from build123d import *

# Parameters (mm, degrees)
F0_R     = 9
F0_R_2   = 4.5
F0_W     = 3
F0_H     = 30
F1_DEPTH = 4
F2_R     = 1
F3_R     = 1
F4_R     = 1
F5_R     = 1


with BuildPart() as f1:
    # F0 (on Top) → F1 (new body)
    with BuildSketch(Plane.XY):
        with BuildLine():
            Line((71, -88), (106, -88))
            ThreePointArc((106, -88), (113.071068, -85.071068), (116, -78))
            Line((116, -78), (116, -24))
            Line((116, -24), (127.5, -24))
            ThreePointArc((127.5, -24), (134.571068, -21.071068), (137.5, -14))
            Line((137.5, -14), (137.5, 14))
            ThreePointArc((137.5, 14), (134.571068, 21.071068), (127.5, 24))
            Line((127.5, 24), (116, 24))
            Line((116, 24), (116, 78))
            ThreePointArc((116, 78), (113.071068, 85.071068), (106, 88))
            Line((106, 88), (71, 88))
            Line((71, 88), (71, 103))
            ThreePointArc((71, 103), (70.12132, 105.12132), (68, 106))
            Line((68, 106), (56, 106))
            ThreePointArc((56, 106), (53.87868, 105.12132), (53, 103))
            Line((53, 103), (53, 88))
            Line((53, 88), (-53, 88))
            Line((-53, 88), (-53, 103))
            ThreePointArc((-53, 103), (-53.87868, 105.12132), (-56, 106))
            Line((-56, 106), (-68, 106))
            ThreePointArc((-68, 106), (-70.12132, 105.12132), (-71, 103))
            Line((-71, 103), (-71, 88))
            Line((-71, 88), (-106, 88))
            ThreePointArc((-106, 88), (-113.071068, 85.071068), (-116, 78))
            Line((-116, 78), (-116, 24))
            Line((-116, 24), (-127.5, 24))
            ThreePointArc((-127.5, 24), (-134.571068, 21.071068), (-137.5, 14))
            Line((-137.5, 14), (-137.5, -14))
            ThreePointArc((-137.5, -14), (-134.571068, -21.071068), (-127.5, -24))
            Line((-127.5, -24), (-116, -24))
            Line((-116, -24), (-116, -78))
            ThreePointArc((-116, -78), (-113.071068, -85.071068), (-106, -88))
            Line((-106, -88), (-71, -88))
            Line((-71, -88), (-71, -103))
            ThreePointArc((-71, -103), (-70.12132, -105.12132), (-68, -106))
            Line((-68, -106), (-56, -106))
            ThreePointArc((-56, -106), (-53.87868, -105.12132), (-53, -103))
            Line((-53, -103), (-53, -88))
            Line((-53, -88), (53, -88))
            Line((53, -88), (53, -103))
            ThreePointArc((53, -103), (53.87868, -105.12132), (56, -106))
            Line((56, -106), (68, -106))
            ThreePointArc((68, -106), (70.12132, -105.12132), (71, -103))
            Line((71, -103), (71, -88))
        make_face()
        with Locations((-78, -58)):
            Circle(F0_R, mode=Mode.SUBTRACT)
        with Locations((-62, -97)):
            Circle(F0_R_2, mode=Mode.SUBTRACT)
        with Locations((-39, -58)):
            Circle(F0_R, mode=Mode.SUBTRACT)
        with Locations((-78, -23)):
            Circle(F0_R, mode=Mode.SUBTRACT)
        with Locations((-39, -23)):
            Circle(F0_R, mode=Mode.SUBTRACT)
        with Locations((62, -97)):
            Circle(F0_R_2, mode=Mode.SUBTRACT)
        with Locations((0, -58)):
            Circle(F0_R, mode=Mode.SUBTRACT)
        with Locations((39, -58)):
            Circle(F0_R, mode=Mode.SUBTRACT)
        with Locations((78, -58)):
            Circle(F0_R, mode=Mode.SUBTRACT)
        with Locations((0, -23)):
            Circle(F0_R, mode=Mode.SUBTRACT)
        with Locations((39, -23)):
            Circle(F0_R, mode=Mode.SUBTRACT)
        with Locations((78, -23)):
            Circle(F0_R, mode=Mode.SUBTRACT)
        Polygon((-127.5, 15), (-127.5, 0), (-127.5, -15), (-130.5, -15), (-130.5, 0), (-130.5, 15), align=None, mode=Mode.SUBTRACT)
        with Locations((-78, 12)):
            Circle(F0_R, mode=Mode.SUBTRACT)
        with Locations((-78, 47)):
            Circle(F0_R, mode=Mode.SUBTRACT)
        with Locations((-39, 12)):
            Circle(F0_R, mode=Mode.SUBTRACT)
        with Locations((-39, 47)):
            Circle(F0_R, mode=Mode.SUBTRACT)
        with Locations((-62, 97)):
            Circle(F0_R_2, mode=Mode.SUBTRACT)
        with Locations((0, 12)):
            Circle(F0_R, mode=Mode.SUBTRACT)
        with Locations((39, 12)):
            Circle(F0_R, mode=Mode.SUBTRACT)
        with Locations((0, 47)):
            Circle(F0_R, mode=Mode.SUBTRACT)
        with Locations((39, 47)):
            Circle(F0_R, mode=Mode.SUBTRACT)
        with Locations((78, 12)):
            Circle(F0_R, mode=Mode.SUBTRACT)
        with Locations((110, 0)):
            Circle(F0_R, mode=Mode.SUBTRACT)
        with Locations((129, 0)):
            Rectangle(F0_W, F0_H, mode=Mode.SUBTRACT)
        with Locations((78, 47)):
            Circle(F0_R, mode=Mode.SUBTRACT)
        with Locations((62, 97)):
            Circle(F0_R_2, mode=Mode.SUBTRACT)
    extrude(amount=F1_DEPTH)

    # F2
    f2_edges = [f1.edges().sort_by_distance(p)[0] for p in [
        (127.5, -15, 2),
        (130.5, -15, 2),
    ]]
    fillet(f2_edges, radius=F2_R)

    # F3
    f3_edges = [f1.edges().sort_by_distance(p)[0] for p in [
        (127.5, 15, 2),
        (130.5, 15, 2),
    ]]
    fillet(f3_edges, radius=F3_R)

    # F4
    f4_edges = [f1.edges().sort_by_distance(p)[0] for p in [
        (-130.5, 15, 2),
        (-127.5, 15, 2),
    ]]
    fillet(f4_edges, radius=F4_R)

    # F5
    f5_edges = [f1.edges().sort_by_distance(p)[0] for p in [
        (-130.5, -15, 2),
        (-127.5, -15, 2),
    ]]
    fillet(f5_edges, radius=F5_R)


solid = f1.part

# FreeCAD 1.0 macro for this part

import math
import FreeCAD as App
import Part
import Sketcher
from FreeCAD import Vector
Q = App.Units.Quantity


def edges_at(feature, points):
    """Names of the edges that pass closest to the given points."""
    edges = feature.Shape.Edges
    near = lambda p: min(range(len(edges)), key=lambda i: edges[i].distToShape(Part.Vertex(*p))[0])
    return sorted({f"Edge{near(p) + 1}" for p in points})

doc = App.newDocument("Part")
params = doc.addObject("Spreadsheet::Sheet", "Params")
for row, (alias, value) in enumerate([
    ("sketch1_diameter", "18 mm"),
    ("sketch1_diameter2", "9 mm"),
    ("sketch1_radius", "9.999999 mm"),
    ("sketch1_radius2", "3.000001 mm"),
    ("sketch1_width", "35 mm"),
    ("pad1_length", "4 mm"),
    ("fillet_radius", "1 mm"),
    ("fillet2_radius", "1 mm"),
    ("fillet3_radius", "1 mm"),
    ("fillet4_radius", "1 mm"),
], start=1):
    params.set(f"A{row}", alias)
    params.set(f"B{row}", "=" + value)
    params.setAlias(f"B{row}", alias)

body = doc.addObject("PartDesign::Body", "Body")

# Sketch on XY plane
sketch1 = body.newObject("Sketcher::SketchObject", "Sketch")
sketch1.AttachmentSupport = (doc.getObject("XY_Plane"), [""])
sketch1.MapMode = "FlatFace"
sketch1.addGeometry(Part.LineSegment(Vector(71, -88, 0), Vector(106, -88, 0)), False)
sketch1.addGeometry(Part.ArcOfCircle(Part.Circle(Vector(106.000001, -78.000001, 0), Vector(0, 0, 1), 9.999999), math.radians(-90.000004), math.radians(0.000004)), False)
sketch1.addGeometry(Part.LineSegment(Vector(116, -78, 0), Vector(116, -24, 0)), False)
sketch1.addGeometry(Part.LineSegment(Vector(116, -24, 0), Vector(127.5, -24, 0)), False)
sketch1.addGeometry(Part.ArcOfCircle(Part.Circle(Vector(127.500001, -14.000001, 0), Vector(0, 0, 1), 9.999999), math.radians(-90.000004), math.radians(0.000004)), False)
sketch1.addGeometry(Part.LineSegment(Vector(137.5, -14, 0), Vector(137.5, 14, 0)), False)
sketch1.addGeometry(Part.ArcOfCircle(Part.Circle(Vector(127.500001, 14.000001, 0), Vector(0, 0, 1), 9.999999), math.radians(-0.000004), math.radians(90.000004)), False)
sketch1.addGeometry(Part.LineSegment(Vector(127.5, 24, 0), Vector(116, 24, 0)), False)
sketch1.addGeometry(Part.LineSegment(Vector(116, 24, 0), Vector(116, 78, 0)), False)
sketch1.addGeometry(Part.ArcOfCircle(Part.Circle(Vector(106.000001, 78.000001, 0), Vector(0, 0, 1), 9.999999), math.radians(-0.000004), math.radians(90.000004)), False)
sketch1.addGeometry(Part.LineSegment(Vector(106, 88, 0), Vector(71, 88, 0)), False)
sketch1.addGeometry(Part.LineSegment(Vector(71, 88, 0), Vector(71, 103, 0)), False)
sketch1.addGeometry(Part.ArcOfCircle(Part.Circle(Vector(67.999999, 102.999999, 0), Vector(0, 0, 1), 3.000001), math.radians(0.000022), math.radians(89.999978)), False)
sketch1.addGeometry(Part.LineSegment(Vector(68, 106, 0), Vector(56, 106, 0)), False)
sketch1.addGeometry(Part.ArcOfCircle(Part.Circle(Vector(56.000001, 102.999999, 0), Vector(0, 0, 1), 3.000001), math.radians(90.000022), math.radians(179.999978)), False)
sketch1.addGeometry(Part.LineSegment(Vector(53, 103, 0), Vector(53, 88, 0)), False)
sketch1.addGeometry(Part.LineSegment(Vector(53, 88, 0), Vector(-53, 88, 0)), False)
sketch1.addGeometry(Part.LineSegment(Vector(-53, 88, 0), Vector(-53, 103, 0)), False)
sketch1.addGeometry(Part.ArcOfCircle(Part.Circle(Vector(-56.000001, 102.999999, 0), Vector(0, 0, 1), 3.000001), math.radians(0.000022), math.radians(89.999978)), False)
sketch1.addGeometry(Part.LineSegment(Vector(-56, 106, 0), Vector(-68, 106, 0)), False)
sketch1.addGeometry(Part.ArcOfCircle(Part.Circle(Vector(-67.999999, 102.999999, 0), Vector(0, 0, 1), 3.000001), math.radians(90.000022), math.radians(179.999978)), False)
sketch1.addGeometry(Part.LineSegment(Vector(-71, 103, 0), Vector(-71, 88, 0)), False)
sketch1.addGeometry(Part.LineSegment(Vector(-71, 88, 0), Vector(-106, 88, 0)), False)
sketch1.addGeometry(Part.ArcOfCircle(Part.Circle(Vector(-106.000001, 78.000001, 0), Vector(0, 0, 1), 9.999999), math.radians(89.999996), math.radians(180.000004)), False)
sketch1.addGeometry(Part.LineSegment(Vector(-116, 78, 0), Vector(-116, 24, 0)), False)
sketch1.addGeometry(Part.LineSegment(Vector(-116, 24, 0), Vector(-127.5, 24, 0)), False)
sketch1.addGeometry(Part.ArcOfCircle(Part.Circle(Vector(-127.500001, 14.000001, 0), Vector(0, 0, 1), 9.999999), math.radians(89.999996), math.radians(180.000004)), False)
sketch1.addGeometry(Part.LineSegment(Vector(-137.5, 14, 0), Vector(-137.5, -14, 0)), False)
sketch1.addGeometry(Part.ArcOfCircle(Part.Circle(Vector(-127.500001, -14.000001, 0), Vector(0, 0, 1), 9.999999), math.radians(179.999996), math.radians(270.000004)), False)
sketch1.addGeometry(Part.LineSegment(Vector(-127.5, -24, 0), Vector(-116, -24, 0)), False)
sketch1.addGeometry(Part.LineSegment(Vector(-116, -24, 0), Vector(-116, -78, 0)), False)
sketch1.addGeometry(Part.ArcOfCircle(Part.Circle(Vector(-106.000001, -78.000001, 0), Vector(0, 0, 1), 9.999999), math.radians(179.999996), math.radians(270.000004)), False)
sketch1.addGeometry(Part.LineSegment(Vector(-106, -88, 0), Vector(-71, -88, 0)), False)
sketch1.addGeometry(Part.LineSegment(Vector(-71, -88, 0), Vector(-71, -103, 0)), False)
sketch1.addGeometry(Part.ArcOfCircle(Part.Circle(Vector(-67.999999, -102.999999, 0), Vector(0, 0, 1), 3.000001), math.radians(-179.999978), math.radians(-90.000022)), False)
sketch1.addGeometry(Part.LineSegment(Vector(-68, -106, 0), Vector(-56, -106, 0)), False)
sketch1.addGeometry(Part.ArcOfCircle(Part.Circle(Vector(-56.000001, -102.999999, 0), Vector(0, 0, 1), 3.000001), math.radians(-89.999978), math.radians(-0.000022)), False)
sketch1.addGeometry(Part.LineSegment(Vector(-53, -103, 0), Vector(-53, -88, 0)), False)
sketch1.addGeometry(Part.LineSegment(Vector(-53, -88, 0), Vector(53, -88, 0)), False)
sketch1.addGeometry(Part.LineSegment(Vector(53, -88, 0), Vector(53, -103, 0)), False)
sketch1.addGeometry(Part.ArcOfCircle(Part.Circle(Vector(56.000001, -102.999999, 0), Vector(0, 0, 1), 3.000001), math.radians(-179.999978), math.radians(-90.000022)), False)
sketch1.addGeometry(Part.LineSegment(Vector(56, -106, 0), Vector(68, -106, 0)), False)
sketch1.addGeometry(Part.ArcOfCircle(Part.Circle(Vector(67.999999, -102.999999, 0), Vector(0, 0, 1), 3.000001), math.radians(-89.999978), math.radians(-0.000022)), False)
sketch1.addGeometry(Part.LineSegment(Vector(71, -103, 0), Vector(71, -88, 0)), False)
sketch1.addGeometry(Part.Circle(Vector(-78, -58, 0), Vector(0, 0, 1), 9), False)
sketch1.addGeometry(Part.Circle(Vector(-62, -97, 0), Vector(0, 0, 1), 4.5), False)
sketch1.addGeometry(Part.Circle(Vector(-39, -58, 0), Vector(0, 0, 1), 9), False)
sketch1.addGeometry(Part.Circle(Vector(-78, -23, 0), Vector(0, 0, 1), 9), False)
sketch1.addGeometry(Part.Circle(Vector(-39, -23, 0), Vector(0, 0, 1), 9), False)
sketch1.addGeometry(Part.Circle(Vector(62, -97, 0), Vector(0, 0, 1), 4.5), False)
sketch1.addGeometry(Part.Circle(Vector(0, -58, 0), Vector(0, 0, 1), 9), False)
sketch1.addGeometry(Part.Circle(Vector(39, -58, 0), Vector(0, 0, 1), 9), False)
sketch1.addGeometry(Part.Circle(Vector(78, -58, 0), Vector(0, 0, 1), 9), False)
sketch1.addGeometry(Part.Circle(Vector(0, -23, 0), Vector(0, 0, 1), 9), False)
sketch1.addGeometry(Part.Circle(Vector(39, -23, 0), Vector(0, 0, 1), 9), False)
sketch1.addGeometry(Part.Circle(Vector(78, -23, 0), Vector(0, 0, 1), 9), False)
sketch1.addGeometry(Part.LineSegment(Vector(-130.5, 15, 0), Vector(-127.5, 15, 0)), False)
sketch1.addGeometry(Part.LineSegment(Vector(-127.5, 15, 0), Vector(-127.5, -15, 0)), False)
sketch1.addGeometry(Part.LineSegment(Vector(-127.5, -15, 0), Vector(-130.5, -15, 0)), False)
sketch1.addGeometry(Part.LineSegment(Vector(-130.5, -15, 0), Vector(-130.5, 15, 0)), False)
sketch1.addGeometry(Part.Circle(Vector(-78, 12, 0), Vector(0, 0, 1), 9), False)
sketch1.addGeometry(Part.Circle(Vector(-78, 47, 0), Vector(0, 0, 1), 9), False)
sketch1.addGeometry(Part.Circle(Vector(-39, 12, 0), Vector(0, 0, 1), 9), False)
sketch1.addGeometry(Part.Circle(Vector(-39, 47, 0), Vector(0, 0, 1), 9), False)
sketch1.addGeometry(Part.Circle(Vector(-62, 97, 0), Vector(0, 0, 1), 4.5), False)
sketch1.addGeometry(Part.Circle(Vector(0, 12, 0), Vector(0, 0, 1), 9), False)
sketch1.addGeometry(Part.Circle(Vector(39, 12, 0), Vector(0, 0, 1), 9), False)
sketch1.addGeometry(Part.Circle(Vector(0, 47, 0), Vector(0, 0, 1), 9), False)
sketch1.addGeometry(Part.Circle(Vector(39, 47, 0), Vector(0, 0, 1), 9), False)
sketch1.addGeometry(Part.Circle(Vector(78, 12, 0), Vector(0, 0, 1), 9), False)
sketch1.addGeometry(Part.Circle(Vector(110, 0, 0), Vector(0, 0, 1), 9), False)
sketch1.addGeometry(Part.LineSegment(Vector(130.5, -15, 0), Vector(127.5, -15, 0)), False)
sketch1.addGeometry(Part.LineSegment(Vector(127.5, -15, 0), Vector(127.5, 15, 0)), False)
sketch1.addGeometry(Part.LineSegment(Vector(127.5, 15, 0), Vector(130.5, 15, 0)), False)
sketch1.addGeometry(Part.LineSegment(Vector(130.5, 15, 0), Vector(130.5, -15, 0)), False)
sketch1.addGeometry(Part.Circle(Vector(78, 47, 0), Vector(0, 0, 1), 9), False)
sketch1.addGeometry(Part.Circle(Vector(62, 97, 0), Vector(0, 0, 1), 4.5), False)
sketch1.addConstraint(Sketcher.Constraint("Tangent", 0, 2, 1, 1))
sketch1.addConstraint(Sketcher.Constraint("Tangent", 1, 2, 2, 1))
sketch1.addConstraint(Sketcher.Constraint("Coincident", 2, 2, 3, 1))
sketch1.addConstraint(Sketcher.Constraint("Tangent", 3, 2, 4, 1))
sketch1.addConstraint(Sketcher.Constraint("Tangent", 4, 2, 5, 1))
sketch1.addConstraint(Sketcher.Constraint("Tangent", 5, 2, 6, 1))
sketch1.addConstraint(Sketcher.Constraint("Tangent", 6, 2, 7, 1))
sketch1.addConstraint(Sketcher.Constraint("Coincident", 7, 2, 8, 1))
sketch1.addConstraint(Sketcher.Constraint("Tangent", 8, 2, 9, 1))
sketch1.addConstraint(Sketcher.Constraint("Tangent", 9, 2, 10, 1))
sketch1.addConstraint(Sketcher.Constraint("Coincident", 10, 2, 11, 1))
sketch1.addConstraint(Sketcher.Constraint("Tangent", 11, 2, 12, 1))
sketch1.addConstraint(Sketcher.Constraint("Tangent", 12, 2, 13, 1))
sketch1.addConstraint(Sketcher.Constraint("Tangent", 13, 2, 14, 1))
sketch1.addConstraint(Sketcher.Constraint("Tangent", 14, 2, 15, 1))
sketch1.addConstraint(Sketcher.Constraint("Coincident", 15, 2, 16, 1))
sketch1.addConstraint(Sketcher.Constraint("Coincident", 16, 2, 17, 1))
sketch1.addConstraint(Sketcher.Constraint("Tangent", 17, 2, 18, 1))
sketch1.addConstraint(Sketcher.Constraint("Tangent", 18, 2, 19, 1))
sketch1.addConstraint(Sketcher.Constraint("Tangent", 19, 2, 20, 1))
sketch1.addConstraint(Sketcher.Constraint("Tangent", 20, 2, 21, 1))
sketch1.addConstraint(Sketcher.Constraint("Coincident", 21, 2, 22, 1))
sketch1.addConstraint(Sketcher.Constraint("Tangent", 22, 2, 23, 1))
sketch1.addConstraint(Sketcher.Constraint("Tangent", 23, 2, 24, 1))
sketch1.addConstraint(Sketcher.Constraint("Coincident", 24, 2, 25, 1))
sketch1.addConstraint(Sketcher.Constraint("Tangent", 25, 2, 26, 1))
sketch1.addConstraint(Sketcher.Constraint("Tangent", 26, 2, 27, 1))
sketch1.addConstraint(Sketcher.Constraint("Tangent", 27, 2, 28, 1))
sketch1.addConstraint(Sketcher.Constraint("Tangent", 28, 2, 29, 1))
sketch1.addConstraint(Sketcher.Constraint("Coincident", 29, 2, 30, 1))
sketch1.addConstraint(Sketcher.Constraint("Tangent", 30, 2, 31, 1))
sketch1.addConstraint(Sketcher.Constraint("Tangent", 31, 2, 32, 1))
sketch1.addConstraint(Sketcher.Constraint("Coincident", 32, 2, 33, 1))
sketch1.addConstraint(Sketcher.Constraint("Tangent", 33, 2, 34, 1))
sketch1.addConstraint(Sketcher.Constraint("Tangent", 34, 2, 35, 1))
sketch1.addConstraint(Sketcher.Constraint("Tangent", 35, 2, 36, 1))
sketch1.addConstraint(Sketcher.Constraint("Tangent", 36, 2, 37, 1))
sketch1.addConstraint(Sketcher.Constraint("Coincident", 37, 2, 38, 1))
sketch1.addConstraint(Sketcher.Constraint("Coincident", 38, 2, 39, 1))
sketch1.addConstraint(Sketcher.Constraint("Tangent", 39, 2, 40, 1))
sketch1.addConstraint(Sketcher.Constraint("Tangent", 40, 2, 41, 1))
sketch1.addConstraint(Sketcher.Constraint("Tangent", 41, 2, 42, 1))
sketch1.addConstraint(Sketcher.Constraint("Tangent", 42, 2, 43, 1))
sketch1.addConstraint(Sketcher.Constraint("Coincident", 43, 2, 0, 1))
sketch1.addConstraint(Sketcher.Constraint("Coincident", 56, 2, 57, 1))
sketch1.addConstraint(Sketcher.Constraint("Coincident", 57, 2, 58, 1))
sketch1.addConstraint(Sketcher.Constraint("Coincident", 58, 2, 59, 1))
sketch1.addConstraint(Sketcher.Constraint("Coincident", 59, 2, 56, 1))
sketch1.addConstraint(Sketcher.Constraint("Coincident", 71, 2, 72, 1))
sketch1.addConstraint(Sketcher.Constraint("Coincident", 72, 2, 73, 1))
sketch1.addConstraint(Sketcher.Constraint("Coincident", 73, 2, 74, 1))
sketch1.addConstraint(Sketcher.Constraint("Coincident", 74, 2, 71, 1))
sketch1.addConstraint(Sketcher.Constraint("Horizontal", 0))
sketch1.addConstraint(Sketcher.Constraint("Vertical", 2))
sketch1.addConstraint(Sketcher.Constraint("Horizontal", 3))
sketch1.addConstraint(Sketcher.Constraint("Vertical", 5))
sketch1.addConstraint(Sketcher.Constraint("Horizontal", 7))
sketch1.addConstraint(Sketcher.Constraint("Vertical", 8))
sketch1.addConstraint(Sketcher.Constraint("Horizontal", 10))
sketch1.addConstraint(Sketcher.Constraint("Vertical", 11))
sketch1.addConstraint(Sketcher.Constraint("Horizontal", 13))
sketch1.addConstraint(Sketcher.Constraint("Vertical", 15))
sketch1.addConstraint(Sketcher.Constraint("Horizontal", 16))
sketch1.addConstraint(Sketcher.Constraint("Vertical", 17))
sketch1.addConstraint(Sketcher.Constraint("Horizontal", 19))
sketch1.addConstraint(Sketcher.Constraint("Vertical", 21))
sketch1.addConstraint(Sketcher.Constraint("Horizontal", 22))
sketch1.addConstraint(Sketcher.Constraint("Vertical", 24))
sketch1.addConstraint(Sketcher.Constraint("Horizontal", 25))
sketch1.addConstraint(Sketcher.Constraint("Vertical", 27))
sketch1.addConstraint(Sketcher.Constraint("Horizontal", 29))
sketch1.addConstraint(Sketcher.Constraint("Vertical", 30))
sketch1.addConstraint(Sketcher.Constraint("Horizontal", 32))
sketch1.addConstraint(Sketcher.Constraint("Vertical", 33))
sketch1.addConstraint(Sketcher.Constraint("Horizontal", 35))
sketch1.addConstraint(Sketcher.Constraint("Vertical", 37))
sketch1.addConstraint(Sketcher.Constraint("Horizontal", 38))
sketch1.addConstraint(Sketcher.Constraint("Vertical", 39))
sketch1.addConstraint(Sketcher.Constraint("Horizontal", 41))
sketch1.addConstraint(Sketcher.Constraint("Vertical", 43))
sketch1.addConstraint(Sketcher.Constraint("Horizontal", 56))
sketch1.addConstraint(Sketcher.Constraint("Vertical", 57))
sketch1.addConstraint(Sketcher.Constraint("Horizontal", 58))
sketch1.addConstraint(Sketcher.Constraint("Vertical", 59))
sketch1.addConstraint(Sketcher.Constraint("Horizontal", 71))
sketch1.addConstraint(Sketcher.Constraint("Vertical", 72))
sketch1.addConstraint(Sketcher.Constraint("Horizontal", 73))
sketch1.addConstraint(Sketcher.Constraint("Vertical", 74))
sketch1.addConstraint(Sketcher.Constraint("Equal", 1, 4))
sketch1.addConstraint(Sketcher.Constraint("Equal", 4, 6))
sketch1.addConstraint(Sketcher.Constraint("Equal", 6, 9))
sketch1.addConstraint(Sketcher.Constraint("Equal", 12, 14))
sketch1.addConstraint(Sketcher.Constraint("Equal", 14, 18))
sketch1.addConstraint(Sketcher.Constraint("Equal", 18, 20))
sketch1.addConstraint(Sketcher.Constraint("Equal", 9, 23))
sketch1.addConstraint(Sketcher.Constraint("Equal", 23, 26))
sketch1.addConstraint(Sketcher.Constraint("Equal", 26, 28))
sketch1.addConstraint(Sketcher.Constraint("Equal", 28, 31))
sketch1.addConstraint(Sketcher.Constraint("Equal", 20, 34))
sketch1.addConstraint(Sketcher.Constraint("Equal", 34, 36))
sketch1.addConstraint(Sketcher.Constraint("Equal", 36, 40))
sketch1.addConstraint(Sketcher.Constraint("Equal", 40, 42))
sketch1.addConstraint(Sketcher.Constraint("Equal", 44, 46))
sketch1.addConstraint(Sketcher.Constraint("Equal", 46, 47))
sketch1.addConstraint(Sketcher.Constraint("Equal", 47, 48))
sketch1.addConstraint(Sketcher.Constraint("Equal", 45, 49))
sketch1.addConstraint(Sketcher.Constraint("Equal", 48, 50))
sketch1.addConstraint(Sketcher.Constraint("Equal", 50, 51))
sketch1.addConstraint(Sketcher.Constraint("Equal", 51, 52))
sketch1.addConstraint(Sketcher.Constraint("Equal", 52, 53))
sketch1.addConstraint(Sketcher.Constraint("Equal", 53, 54))
sketch1.addConstraint(Sketcher.Constraint("Equal", 54, 55))
sketch1.addConstraint(Sketcher.Constraint("Equal", 55, 60))
sketch1.addConstraint(Sketcher.Constraint("Equal", 60, 61))
sketch1.addConstraint(Sketcher.Constraint("Equal", 61, 62))
sketch1.addConstraint(Sketcher.Constraint("Equal", 62, 63))
sketch1.addConstraint(Sketcher.Constraint("Equal", 49, 64))
sketch1.addConstraint(Sketcher.Constraint("Equal", 63, 65))
sketch1.addConstraint(Sketcher.Constraint("Equal", 65, 66))
sketch1.addConstraint(Sketcher.Constraint("Equal", 66, 67))
sketch1.addConstraint(Sketcher.Constraint("Equal", 67, 68))
sketch1.addConstraint(Sketcher.Constraint("Equal", 68, 69))
sketch1.addConstraint(Sketcher.Constraint("Equal", 69, 70))
sketch1.addConstraint(Sketcher.Constraint("Equal", 70, 75))
sketch1.addConstraint(Sketcher.Constraint("Equal", 64, 76))
sketch1.addConstraint(Sketcher.Constraint("Symmetric", 1, 3, 23, 3, -1, 1))
sketch1.addConstraint(Sketcher.Constraint("Symmetric", 4, 3, 26, 3, -1, 1))
sketch1.addConstraint(Sketcher.Constraint("Symmetric", 9, 3, 31, 3, -1, 1))
sketch1.addConstraint(Sketcher.Constraint("Symmetric", 12, 3, 34, 3, -1, 1))
sketch1.addConstraint(Sketcher.Constraint("Symmetric", 18, 3, 40, 3, -1, 1))
sketch1.addConstraint(Sketcher.Constraint("Symmetric", 49, 3, 64, 3, -1, 1))
sketch1.addConstraint(Sketcher.Constraint("Symmetric", 45, 3, 76, 3, -1, 1))
sketch1.addConstraint(Sketcher.Constraint("Symmetric", 15, 2, 37, 2, -1, 1))
sketch1.addConstraint(Sketcher.Constraint("Symmetric", 56, 2, 71, 2, -1, 1))
sketch1.addConstraint(Sketcher.Constraint("Symmetric", 58, 2, 73, 2, -1, 1))
sketch1.addConstraint(Sketcher.Constraint("Symmetric", 14, 3, 18, 3, -2))
sketch1.addConstraint(Sketcher.Constraint("Symmetric", 9, 3, 23, 3, -2))
sketch1.addConstraint(Sketcher.Constraint("Symmetric", 45, 3, 49, 3, -2))
sketch1.addConstraint(Sketcher.Constraint("Symmetric", 46, 3, 51, 3, -2))
sketch1.addConstraint(Sketcher.Constraint("Symmetric", 44, 3, 52, 3, -2))
sketch1.addConstraint(Sketcher.Constraint("Symmetric", 48, 3, 54, 3, -2))
sketch1.addConstraint(Sketcher.Constraint("Symmetric", 47, 3, 55, 3, -2))
sketch1.addConstraint(Sketcher.Constraint("Symmetric", 62, 3, 66, 3, -2))
sketch1.addConstraint(Sketcher.Constraint("Symmetric", 63, 3, 68, 3, -2))
sketch1.addConstraint(Sketcher.Constraint("Symmetric", 60, 3, 69, 3, -2))
sketch1.addConstraint(Sketcher.Constraint("Symmetric", 61, 3, 75, 3, -2))
sketch1.addConstraint(Sketcher.Constraint("PointOnObject", 50, 3, -2))
sketch1.addConstraint(Sketcher.Constraint("PointOnObject", 53, 3, -2))
sketch1.addConstraint(Sketcher.Constraint("PointOnObject", 65, 3, -2))
sketch1.addConstraint(Sketcher.Constraint("PointOnObject", 67, 3, -2))
sketch1.addConstraint(Sketcher.Constraint("PointOnObject", 70, 3, -1))
sketch1.addConstraint(Sketcher.Constraint("Horizontal", 6, 3, 26, 3))
sketch1.addConstraint(Sketcher.Constraint("Horizontal", 4, 3, 28, 3))
sketch1.addConstraint(Sketcher.Constraint("Horizontal", 44, 3, 46, 3))
sketch1.addConstraint(Sketcher.Constraint("Horizontal", 47, 3, 48, 3))
sketch1.addConstraint(Sketcher.Constraint("Horizontal", 46, 3, 50, 3))
sketch1.addConstraint(Sketcher.Constraint("Horizontal", 48, 3, 53, 3))
sketch1.addConstraint(Sketcher.Constraint("Horizontal", 60, 3, 62, 3))
sketch1.addConstraint(Sketcher.Constraint("Horizontal", 61, 3, 63, 3))
sketch1.addConstraint(Sketcher.Constraint("Horizontal", 62, 3, 65, 3))
sketch1.addConstraint(Sketcher.Constraint("Horizontal", 63, 3, 67, 3))
sketch1.addConstraint(Sketcher.Constraint("Horizontal", 10, 2, 15, 2))
sketch1.addConstraint(Sketcher.Constraint("Horizontal", 58, 2, 71, 2))
sketch1.addConstraint(Sketcher.Constraint("Vertical", 20, 3, 34, 3))
sketch1.addConstraint(Sketcher.Constraint("Vertical", 12, 3, 42, 3))
sketch1.addConstraint(Sketcher.Constraint("Vertical", 44, 3, 47, 3))
sketch1.addConstraint(Sketcher.Constraint("Vertical", 46, 3, 48, 3))
sketch1.addConstraint(Sketcher.Constraint("Vertical", 47, 3, 60, 3))
sketch1.addConstraint(Sketcher.Constraint("Vertical", 60, 3, 61, 3))
sketch1.addConstraint(Sketcher.Constraint("Vertical", 48, 3, 62, 3))
sketch1.addConstraint(Sketcher.Constraint("Vertical", 62, 3, 63, 3))
sketch1.addConstraint(Sketcher.Constraint("Vertical", 28, 2, 56, 2))
sketch1.addConstraint(Sketcher.Constraint("Diameter", 44, Q("18 mm")))
sketch1.addConstraint(Sketcher.Constraint("Diameter", 45, Q("9 mm")))
sketch1.addConstraint(Sketcher.Constraint("Radius", 1, Q("9.999999 mm")))
sketch1.addConstraint(Sketcher.Constraint("Radius", 12, Q("3.000001 mm")))
sketch1.addConstraint(Sketcher.Constraint("DistanceX", 0, 1, 0, 2, Q("35 mm")))
sketch1.addConstraint(Sketcher.Constraint("DistanceX", 13, 2, 13, 1, Q("12 mm")))
sketch1.addConstraint(Sketcher.Constraint("DistanceX", 16, 2, 16, 1, Q("106 mm")))
sketch1.addConstraint(Sketcher.Constraint("DistanceX", 56, 1, 56, 2, Q("3 mm")))
sketch1.addConstraint(Sketcher.Constraint("DistanceY", 2, 1, 2, 2, Q("54 mm")))
sketch1.addConstraint(Sketcher.Constraint("DistanceY", 5, 1, 5, 2, Q("28 mm")))
sketch1.addConstraint(Sketcher.Constraint("DistanceY", 11, 1, 11, 2, Q("15 mm")))
sketch1.addConstraint(Sketcher.Constraint("DistanceY", 57, 2, 57, 1, Q("30 mm")))
sketch1.addConstraint(Sketcher.Constraint("DistanceX", 3, 1, 3, 2, Q("11.5 mm")))
sketch1.addConstraint(Sketcher.Constraint("DistanceX", 44, 3, -1, 1, Q("78 mm")))
sketch1.addConstraint(Sketcher.Constraint("DistanceY", 44, 3, -1, 1, Q("58 mm")))
sketch1.addConstraint(Sketcher.Constraint("DistanceX", 45, 3, -1, 1, Q("62 mm")))
sketch1.addConstraint(Sketcher.Constraint("DistanceY", 45, 3, -1, 1, Q("97 mm")))
sketch1.addConstraint(Sketcher.Constraint("DistanceX", 46, 3, -1, 1, Q("39 mm")))
sketch1.addConstraint(Sketcher.Constraint("DistanceY", 47, 3, -1, 1, Q("23 mm")))
sketch1.addConstraint(Sketcher.Constraint("DistanceY", -1, 1, 60, 3, Q("12 mm")))
sketch1.addConstraint(Sketcher.Constraint("DistanceY", -1, 1, 61, 3, Q("47 mm")))
sketch1.addConstraint(Sketcher.Constraint("DistanceX", -1, 1, 70, 3, Q("110 mm")))
sketch1.setExpression("Constraints[172]", "Params.sketch1_diameter")
sketch1.setExpression("Constraints[173]", "Params.sketch1_diameter2")
sketch1.setExpression("Constraints[174]", "Params.sketch1_radius")
sketch1.setExpression("Constraints[175]", "Params.sketch1_radius2")
sketch1.setExpression("Constraints[176]", "Params.sketch1_width")
pad1 = body.newObject("PartDesign::Pad", "Pad")
pad1.Profile = sketch1
pad1.setExpression("Length", "Params.pad1_length")
doc.recompute()

fillet = body.newObject("PartDesign::Fillet", "Fillet")
fillet.Base = (pad1, edges_at(pad1, [(127.5, -15, 2), (130.5, -15, 2)]))
fillet.setExpression("Radius", "Params.fillet_radius")
doc.recompute()

fillet2 = body.newObject("PartDesign::Fillet", "Fillet001")
fillet2.Base = (fillet, edges_at(fillet, [(127.5, 15, 2), (130.5, 15, 2)]))
fillet2.setExpression("Radius", "Params.fillet2_radius")
doc.recompute()

fillet3 = body.newObject("PartDesign::Fillet", "Fillet002")
fillet3.Base = (fillet2, edges_at(fillet2, [(-130.5, 15, 2), (-127.5, 15, 2)]))
fillet3.setExpression("Radius", "Params.fillet3_radius")
doc.recompute()

fillet4 = body.newObject("PartDesign::Fillet", "Fillet003")
fillet4.Base = (fillet3, edges_at(fillet3, [(-130.5, -15, 2), (-127.5, -15, 2)]))
fillet4.setExpression("Radius", "Params.fillet4_radius")

doc.recompute()
